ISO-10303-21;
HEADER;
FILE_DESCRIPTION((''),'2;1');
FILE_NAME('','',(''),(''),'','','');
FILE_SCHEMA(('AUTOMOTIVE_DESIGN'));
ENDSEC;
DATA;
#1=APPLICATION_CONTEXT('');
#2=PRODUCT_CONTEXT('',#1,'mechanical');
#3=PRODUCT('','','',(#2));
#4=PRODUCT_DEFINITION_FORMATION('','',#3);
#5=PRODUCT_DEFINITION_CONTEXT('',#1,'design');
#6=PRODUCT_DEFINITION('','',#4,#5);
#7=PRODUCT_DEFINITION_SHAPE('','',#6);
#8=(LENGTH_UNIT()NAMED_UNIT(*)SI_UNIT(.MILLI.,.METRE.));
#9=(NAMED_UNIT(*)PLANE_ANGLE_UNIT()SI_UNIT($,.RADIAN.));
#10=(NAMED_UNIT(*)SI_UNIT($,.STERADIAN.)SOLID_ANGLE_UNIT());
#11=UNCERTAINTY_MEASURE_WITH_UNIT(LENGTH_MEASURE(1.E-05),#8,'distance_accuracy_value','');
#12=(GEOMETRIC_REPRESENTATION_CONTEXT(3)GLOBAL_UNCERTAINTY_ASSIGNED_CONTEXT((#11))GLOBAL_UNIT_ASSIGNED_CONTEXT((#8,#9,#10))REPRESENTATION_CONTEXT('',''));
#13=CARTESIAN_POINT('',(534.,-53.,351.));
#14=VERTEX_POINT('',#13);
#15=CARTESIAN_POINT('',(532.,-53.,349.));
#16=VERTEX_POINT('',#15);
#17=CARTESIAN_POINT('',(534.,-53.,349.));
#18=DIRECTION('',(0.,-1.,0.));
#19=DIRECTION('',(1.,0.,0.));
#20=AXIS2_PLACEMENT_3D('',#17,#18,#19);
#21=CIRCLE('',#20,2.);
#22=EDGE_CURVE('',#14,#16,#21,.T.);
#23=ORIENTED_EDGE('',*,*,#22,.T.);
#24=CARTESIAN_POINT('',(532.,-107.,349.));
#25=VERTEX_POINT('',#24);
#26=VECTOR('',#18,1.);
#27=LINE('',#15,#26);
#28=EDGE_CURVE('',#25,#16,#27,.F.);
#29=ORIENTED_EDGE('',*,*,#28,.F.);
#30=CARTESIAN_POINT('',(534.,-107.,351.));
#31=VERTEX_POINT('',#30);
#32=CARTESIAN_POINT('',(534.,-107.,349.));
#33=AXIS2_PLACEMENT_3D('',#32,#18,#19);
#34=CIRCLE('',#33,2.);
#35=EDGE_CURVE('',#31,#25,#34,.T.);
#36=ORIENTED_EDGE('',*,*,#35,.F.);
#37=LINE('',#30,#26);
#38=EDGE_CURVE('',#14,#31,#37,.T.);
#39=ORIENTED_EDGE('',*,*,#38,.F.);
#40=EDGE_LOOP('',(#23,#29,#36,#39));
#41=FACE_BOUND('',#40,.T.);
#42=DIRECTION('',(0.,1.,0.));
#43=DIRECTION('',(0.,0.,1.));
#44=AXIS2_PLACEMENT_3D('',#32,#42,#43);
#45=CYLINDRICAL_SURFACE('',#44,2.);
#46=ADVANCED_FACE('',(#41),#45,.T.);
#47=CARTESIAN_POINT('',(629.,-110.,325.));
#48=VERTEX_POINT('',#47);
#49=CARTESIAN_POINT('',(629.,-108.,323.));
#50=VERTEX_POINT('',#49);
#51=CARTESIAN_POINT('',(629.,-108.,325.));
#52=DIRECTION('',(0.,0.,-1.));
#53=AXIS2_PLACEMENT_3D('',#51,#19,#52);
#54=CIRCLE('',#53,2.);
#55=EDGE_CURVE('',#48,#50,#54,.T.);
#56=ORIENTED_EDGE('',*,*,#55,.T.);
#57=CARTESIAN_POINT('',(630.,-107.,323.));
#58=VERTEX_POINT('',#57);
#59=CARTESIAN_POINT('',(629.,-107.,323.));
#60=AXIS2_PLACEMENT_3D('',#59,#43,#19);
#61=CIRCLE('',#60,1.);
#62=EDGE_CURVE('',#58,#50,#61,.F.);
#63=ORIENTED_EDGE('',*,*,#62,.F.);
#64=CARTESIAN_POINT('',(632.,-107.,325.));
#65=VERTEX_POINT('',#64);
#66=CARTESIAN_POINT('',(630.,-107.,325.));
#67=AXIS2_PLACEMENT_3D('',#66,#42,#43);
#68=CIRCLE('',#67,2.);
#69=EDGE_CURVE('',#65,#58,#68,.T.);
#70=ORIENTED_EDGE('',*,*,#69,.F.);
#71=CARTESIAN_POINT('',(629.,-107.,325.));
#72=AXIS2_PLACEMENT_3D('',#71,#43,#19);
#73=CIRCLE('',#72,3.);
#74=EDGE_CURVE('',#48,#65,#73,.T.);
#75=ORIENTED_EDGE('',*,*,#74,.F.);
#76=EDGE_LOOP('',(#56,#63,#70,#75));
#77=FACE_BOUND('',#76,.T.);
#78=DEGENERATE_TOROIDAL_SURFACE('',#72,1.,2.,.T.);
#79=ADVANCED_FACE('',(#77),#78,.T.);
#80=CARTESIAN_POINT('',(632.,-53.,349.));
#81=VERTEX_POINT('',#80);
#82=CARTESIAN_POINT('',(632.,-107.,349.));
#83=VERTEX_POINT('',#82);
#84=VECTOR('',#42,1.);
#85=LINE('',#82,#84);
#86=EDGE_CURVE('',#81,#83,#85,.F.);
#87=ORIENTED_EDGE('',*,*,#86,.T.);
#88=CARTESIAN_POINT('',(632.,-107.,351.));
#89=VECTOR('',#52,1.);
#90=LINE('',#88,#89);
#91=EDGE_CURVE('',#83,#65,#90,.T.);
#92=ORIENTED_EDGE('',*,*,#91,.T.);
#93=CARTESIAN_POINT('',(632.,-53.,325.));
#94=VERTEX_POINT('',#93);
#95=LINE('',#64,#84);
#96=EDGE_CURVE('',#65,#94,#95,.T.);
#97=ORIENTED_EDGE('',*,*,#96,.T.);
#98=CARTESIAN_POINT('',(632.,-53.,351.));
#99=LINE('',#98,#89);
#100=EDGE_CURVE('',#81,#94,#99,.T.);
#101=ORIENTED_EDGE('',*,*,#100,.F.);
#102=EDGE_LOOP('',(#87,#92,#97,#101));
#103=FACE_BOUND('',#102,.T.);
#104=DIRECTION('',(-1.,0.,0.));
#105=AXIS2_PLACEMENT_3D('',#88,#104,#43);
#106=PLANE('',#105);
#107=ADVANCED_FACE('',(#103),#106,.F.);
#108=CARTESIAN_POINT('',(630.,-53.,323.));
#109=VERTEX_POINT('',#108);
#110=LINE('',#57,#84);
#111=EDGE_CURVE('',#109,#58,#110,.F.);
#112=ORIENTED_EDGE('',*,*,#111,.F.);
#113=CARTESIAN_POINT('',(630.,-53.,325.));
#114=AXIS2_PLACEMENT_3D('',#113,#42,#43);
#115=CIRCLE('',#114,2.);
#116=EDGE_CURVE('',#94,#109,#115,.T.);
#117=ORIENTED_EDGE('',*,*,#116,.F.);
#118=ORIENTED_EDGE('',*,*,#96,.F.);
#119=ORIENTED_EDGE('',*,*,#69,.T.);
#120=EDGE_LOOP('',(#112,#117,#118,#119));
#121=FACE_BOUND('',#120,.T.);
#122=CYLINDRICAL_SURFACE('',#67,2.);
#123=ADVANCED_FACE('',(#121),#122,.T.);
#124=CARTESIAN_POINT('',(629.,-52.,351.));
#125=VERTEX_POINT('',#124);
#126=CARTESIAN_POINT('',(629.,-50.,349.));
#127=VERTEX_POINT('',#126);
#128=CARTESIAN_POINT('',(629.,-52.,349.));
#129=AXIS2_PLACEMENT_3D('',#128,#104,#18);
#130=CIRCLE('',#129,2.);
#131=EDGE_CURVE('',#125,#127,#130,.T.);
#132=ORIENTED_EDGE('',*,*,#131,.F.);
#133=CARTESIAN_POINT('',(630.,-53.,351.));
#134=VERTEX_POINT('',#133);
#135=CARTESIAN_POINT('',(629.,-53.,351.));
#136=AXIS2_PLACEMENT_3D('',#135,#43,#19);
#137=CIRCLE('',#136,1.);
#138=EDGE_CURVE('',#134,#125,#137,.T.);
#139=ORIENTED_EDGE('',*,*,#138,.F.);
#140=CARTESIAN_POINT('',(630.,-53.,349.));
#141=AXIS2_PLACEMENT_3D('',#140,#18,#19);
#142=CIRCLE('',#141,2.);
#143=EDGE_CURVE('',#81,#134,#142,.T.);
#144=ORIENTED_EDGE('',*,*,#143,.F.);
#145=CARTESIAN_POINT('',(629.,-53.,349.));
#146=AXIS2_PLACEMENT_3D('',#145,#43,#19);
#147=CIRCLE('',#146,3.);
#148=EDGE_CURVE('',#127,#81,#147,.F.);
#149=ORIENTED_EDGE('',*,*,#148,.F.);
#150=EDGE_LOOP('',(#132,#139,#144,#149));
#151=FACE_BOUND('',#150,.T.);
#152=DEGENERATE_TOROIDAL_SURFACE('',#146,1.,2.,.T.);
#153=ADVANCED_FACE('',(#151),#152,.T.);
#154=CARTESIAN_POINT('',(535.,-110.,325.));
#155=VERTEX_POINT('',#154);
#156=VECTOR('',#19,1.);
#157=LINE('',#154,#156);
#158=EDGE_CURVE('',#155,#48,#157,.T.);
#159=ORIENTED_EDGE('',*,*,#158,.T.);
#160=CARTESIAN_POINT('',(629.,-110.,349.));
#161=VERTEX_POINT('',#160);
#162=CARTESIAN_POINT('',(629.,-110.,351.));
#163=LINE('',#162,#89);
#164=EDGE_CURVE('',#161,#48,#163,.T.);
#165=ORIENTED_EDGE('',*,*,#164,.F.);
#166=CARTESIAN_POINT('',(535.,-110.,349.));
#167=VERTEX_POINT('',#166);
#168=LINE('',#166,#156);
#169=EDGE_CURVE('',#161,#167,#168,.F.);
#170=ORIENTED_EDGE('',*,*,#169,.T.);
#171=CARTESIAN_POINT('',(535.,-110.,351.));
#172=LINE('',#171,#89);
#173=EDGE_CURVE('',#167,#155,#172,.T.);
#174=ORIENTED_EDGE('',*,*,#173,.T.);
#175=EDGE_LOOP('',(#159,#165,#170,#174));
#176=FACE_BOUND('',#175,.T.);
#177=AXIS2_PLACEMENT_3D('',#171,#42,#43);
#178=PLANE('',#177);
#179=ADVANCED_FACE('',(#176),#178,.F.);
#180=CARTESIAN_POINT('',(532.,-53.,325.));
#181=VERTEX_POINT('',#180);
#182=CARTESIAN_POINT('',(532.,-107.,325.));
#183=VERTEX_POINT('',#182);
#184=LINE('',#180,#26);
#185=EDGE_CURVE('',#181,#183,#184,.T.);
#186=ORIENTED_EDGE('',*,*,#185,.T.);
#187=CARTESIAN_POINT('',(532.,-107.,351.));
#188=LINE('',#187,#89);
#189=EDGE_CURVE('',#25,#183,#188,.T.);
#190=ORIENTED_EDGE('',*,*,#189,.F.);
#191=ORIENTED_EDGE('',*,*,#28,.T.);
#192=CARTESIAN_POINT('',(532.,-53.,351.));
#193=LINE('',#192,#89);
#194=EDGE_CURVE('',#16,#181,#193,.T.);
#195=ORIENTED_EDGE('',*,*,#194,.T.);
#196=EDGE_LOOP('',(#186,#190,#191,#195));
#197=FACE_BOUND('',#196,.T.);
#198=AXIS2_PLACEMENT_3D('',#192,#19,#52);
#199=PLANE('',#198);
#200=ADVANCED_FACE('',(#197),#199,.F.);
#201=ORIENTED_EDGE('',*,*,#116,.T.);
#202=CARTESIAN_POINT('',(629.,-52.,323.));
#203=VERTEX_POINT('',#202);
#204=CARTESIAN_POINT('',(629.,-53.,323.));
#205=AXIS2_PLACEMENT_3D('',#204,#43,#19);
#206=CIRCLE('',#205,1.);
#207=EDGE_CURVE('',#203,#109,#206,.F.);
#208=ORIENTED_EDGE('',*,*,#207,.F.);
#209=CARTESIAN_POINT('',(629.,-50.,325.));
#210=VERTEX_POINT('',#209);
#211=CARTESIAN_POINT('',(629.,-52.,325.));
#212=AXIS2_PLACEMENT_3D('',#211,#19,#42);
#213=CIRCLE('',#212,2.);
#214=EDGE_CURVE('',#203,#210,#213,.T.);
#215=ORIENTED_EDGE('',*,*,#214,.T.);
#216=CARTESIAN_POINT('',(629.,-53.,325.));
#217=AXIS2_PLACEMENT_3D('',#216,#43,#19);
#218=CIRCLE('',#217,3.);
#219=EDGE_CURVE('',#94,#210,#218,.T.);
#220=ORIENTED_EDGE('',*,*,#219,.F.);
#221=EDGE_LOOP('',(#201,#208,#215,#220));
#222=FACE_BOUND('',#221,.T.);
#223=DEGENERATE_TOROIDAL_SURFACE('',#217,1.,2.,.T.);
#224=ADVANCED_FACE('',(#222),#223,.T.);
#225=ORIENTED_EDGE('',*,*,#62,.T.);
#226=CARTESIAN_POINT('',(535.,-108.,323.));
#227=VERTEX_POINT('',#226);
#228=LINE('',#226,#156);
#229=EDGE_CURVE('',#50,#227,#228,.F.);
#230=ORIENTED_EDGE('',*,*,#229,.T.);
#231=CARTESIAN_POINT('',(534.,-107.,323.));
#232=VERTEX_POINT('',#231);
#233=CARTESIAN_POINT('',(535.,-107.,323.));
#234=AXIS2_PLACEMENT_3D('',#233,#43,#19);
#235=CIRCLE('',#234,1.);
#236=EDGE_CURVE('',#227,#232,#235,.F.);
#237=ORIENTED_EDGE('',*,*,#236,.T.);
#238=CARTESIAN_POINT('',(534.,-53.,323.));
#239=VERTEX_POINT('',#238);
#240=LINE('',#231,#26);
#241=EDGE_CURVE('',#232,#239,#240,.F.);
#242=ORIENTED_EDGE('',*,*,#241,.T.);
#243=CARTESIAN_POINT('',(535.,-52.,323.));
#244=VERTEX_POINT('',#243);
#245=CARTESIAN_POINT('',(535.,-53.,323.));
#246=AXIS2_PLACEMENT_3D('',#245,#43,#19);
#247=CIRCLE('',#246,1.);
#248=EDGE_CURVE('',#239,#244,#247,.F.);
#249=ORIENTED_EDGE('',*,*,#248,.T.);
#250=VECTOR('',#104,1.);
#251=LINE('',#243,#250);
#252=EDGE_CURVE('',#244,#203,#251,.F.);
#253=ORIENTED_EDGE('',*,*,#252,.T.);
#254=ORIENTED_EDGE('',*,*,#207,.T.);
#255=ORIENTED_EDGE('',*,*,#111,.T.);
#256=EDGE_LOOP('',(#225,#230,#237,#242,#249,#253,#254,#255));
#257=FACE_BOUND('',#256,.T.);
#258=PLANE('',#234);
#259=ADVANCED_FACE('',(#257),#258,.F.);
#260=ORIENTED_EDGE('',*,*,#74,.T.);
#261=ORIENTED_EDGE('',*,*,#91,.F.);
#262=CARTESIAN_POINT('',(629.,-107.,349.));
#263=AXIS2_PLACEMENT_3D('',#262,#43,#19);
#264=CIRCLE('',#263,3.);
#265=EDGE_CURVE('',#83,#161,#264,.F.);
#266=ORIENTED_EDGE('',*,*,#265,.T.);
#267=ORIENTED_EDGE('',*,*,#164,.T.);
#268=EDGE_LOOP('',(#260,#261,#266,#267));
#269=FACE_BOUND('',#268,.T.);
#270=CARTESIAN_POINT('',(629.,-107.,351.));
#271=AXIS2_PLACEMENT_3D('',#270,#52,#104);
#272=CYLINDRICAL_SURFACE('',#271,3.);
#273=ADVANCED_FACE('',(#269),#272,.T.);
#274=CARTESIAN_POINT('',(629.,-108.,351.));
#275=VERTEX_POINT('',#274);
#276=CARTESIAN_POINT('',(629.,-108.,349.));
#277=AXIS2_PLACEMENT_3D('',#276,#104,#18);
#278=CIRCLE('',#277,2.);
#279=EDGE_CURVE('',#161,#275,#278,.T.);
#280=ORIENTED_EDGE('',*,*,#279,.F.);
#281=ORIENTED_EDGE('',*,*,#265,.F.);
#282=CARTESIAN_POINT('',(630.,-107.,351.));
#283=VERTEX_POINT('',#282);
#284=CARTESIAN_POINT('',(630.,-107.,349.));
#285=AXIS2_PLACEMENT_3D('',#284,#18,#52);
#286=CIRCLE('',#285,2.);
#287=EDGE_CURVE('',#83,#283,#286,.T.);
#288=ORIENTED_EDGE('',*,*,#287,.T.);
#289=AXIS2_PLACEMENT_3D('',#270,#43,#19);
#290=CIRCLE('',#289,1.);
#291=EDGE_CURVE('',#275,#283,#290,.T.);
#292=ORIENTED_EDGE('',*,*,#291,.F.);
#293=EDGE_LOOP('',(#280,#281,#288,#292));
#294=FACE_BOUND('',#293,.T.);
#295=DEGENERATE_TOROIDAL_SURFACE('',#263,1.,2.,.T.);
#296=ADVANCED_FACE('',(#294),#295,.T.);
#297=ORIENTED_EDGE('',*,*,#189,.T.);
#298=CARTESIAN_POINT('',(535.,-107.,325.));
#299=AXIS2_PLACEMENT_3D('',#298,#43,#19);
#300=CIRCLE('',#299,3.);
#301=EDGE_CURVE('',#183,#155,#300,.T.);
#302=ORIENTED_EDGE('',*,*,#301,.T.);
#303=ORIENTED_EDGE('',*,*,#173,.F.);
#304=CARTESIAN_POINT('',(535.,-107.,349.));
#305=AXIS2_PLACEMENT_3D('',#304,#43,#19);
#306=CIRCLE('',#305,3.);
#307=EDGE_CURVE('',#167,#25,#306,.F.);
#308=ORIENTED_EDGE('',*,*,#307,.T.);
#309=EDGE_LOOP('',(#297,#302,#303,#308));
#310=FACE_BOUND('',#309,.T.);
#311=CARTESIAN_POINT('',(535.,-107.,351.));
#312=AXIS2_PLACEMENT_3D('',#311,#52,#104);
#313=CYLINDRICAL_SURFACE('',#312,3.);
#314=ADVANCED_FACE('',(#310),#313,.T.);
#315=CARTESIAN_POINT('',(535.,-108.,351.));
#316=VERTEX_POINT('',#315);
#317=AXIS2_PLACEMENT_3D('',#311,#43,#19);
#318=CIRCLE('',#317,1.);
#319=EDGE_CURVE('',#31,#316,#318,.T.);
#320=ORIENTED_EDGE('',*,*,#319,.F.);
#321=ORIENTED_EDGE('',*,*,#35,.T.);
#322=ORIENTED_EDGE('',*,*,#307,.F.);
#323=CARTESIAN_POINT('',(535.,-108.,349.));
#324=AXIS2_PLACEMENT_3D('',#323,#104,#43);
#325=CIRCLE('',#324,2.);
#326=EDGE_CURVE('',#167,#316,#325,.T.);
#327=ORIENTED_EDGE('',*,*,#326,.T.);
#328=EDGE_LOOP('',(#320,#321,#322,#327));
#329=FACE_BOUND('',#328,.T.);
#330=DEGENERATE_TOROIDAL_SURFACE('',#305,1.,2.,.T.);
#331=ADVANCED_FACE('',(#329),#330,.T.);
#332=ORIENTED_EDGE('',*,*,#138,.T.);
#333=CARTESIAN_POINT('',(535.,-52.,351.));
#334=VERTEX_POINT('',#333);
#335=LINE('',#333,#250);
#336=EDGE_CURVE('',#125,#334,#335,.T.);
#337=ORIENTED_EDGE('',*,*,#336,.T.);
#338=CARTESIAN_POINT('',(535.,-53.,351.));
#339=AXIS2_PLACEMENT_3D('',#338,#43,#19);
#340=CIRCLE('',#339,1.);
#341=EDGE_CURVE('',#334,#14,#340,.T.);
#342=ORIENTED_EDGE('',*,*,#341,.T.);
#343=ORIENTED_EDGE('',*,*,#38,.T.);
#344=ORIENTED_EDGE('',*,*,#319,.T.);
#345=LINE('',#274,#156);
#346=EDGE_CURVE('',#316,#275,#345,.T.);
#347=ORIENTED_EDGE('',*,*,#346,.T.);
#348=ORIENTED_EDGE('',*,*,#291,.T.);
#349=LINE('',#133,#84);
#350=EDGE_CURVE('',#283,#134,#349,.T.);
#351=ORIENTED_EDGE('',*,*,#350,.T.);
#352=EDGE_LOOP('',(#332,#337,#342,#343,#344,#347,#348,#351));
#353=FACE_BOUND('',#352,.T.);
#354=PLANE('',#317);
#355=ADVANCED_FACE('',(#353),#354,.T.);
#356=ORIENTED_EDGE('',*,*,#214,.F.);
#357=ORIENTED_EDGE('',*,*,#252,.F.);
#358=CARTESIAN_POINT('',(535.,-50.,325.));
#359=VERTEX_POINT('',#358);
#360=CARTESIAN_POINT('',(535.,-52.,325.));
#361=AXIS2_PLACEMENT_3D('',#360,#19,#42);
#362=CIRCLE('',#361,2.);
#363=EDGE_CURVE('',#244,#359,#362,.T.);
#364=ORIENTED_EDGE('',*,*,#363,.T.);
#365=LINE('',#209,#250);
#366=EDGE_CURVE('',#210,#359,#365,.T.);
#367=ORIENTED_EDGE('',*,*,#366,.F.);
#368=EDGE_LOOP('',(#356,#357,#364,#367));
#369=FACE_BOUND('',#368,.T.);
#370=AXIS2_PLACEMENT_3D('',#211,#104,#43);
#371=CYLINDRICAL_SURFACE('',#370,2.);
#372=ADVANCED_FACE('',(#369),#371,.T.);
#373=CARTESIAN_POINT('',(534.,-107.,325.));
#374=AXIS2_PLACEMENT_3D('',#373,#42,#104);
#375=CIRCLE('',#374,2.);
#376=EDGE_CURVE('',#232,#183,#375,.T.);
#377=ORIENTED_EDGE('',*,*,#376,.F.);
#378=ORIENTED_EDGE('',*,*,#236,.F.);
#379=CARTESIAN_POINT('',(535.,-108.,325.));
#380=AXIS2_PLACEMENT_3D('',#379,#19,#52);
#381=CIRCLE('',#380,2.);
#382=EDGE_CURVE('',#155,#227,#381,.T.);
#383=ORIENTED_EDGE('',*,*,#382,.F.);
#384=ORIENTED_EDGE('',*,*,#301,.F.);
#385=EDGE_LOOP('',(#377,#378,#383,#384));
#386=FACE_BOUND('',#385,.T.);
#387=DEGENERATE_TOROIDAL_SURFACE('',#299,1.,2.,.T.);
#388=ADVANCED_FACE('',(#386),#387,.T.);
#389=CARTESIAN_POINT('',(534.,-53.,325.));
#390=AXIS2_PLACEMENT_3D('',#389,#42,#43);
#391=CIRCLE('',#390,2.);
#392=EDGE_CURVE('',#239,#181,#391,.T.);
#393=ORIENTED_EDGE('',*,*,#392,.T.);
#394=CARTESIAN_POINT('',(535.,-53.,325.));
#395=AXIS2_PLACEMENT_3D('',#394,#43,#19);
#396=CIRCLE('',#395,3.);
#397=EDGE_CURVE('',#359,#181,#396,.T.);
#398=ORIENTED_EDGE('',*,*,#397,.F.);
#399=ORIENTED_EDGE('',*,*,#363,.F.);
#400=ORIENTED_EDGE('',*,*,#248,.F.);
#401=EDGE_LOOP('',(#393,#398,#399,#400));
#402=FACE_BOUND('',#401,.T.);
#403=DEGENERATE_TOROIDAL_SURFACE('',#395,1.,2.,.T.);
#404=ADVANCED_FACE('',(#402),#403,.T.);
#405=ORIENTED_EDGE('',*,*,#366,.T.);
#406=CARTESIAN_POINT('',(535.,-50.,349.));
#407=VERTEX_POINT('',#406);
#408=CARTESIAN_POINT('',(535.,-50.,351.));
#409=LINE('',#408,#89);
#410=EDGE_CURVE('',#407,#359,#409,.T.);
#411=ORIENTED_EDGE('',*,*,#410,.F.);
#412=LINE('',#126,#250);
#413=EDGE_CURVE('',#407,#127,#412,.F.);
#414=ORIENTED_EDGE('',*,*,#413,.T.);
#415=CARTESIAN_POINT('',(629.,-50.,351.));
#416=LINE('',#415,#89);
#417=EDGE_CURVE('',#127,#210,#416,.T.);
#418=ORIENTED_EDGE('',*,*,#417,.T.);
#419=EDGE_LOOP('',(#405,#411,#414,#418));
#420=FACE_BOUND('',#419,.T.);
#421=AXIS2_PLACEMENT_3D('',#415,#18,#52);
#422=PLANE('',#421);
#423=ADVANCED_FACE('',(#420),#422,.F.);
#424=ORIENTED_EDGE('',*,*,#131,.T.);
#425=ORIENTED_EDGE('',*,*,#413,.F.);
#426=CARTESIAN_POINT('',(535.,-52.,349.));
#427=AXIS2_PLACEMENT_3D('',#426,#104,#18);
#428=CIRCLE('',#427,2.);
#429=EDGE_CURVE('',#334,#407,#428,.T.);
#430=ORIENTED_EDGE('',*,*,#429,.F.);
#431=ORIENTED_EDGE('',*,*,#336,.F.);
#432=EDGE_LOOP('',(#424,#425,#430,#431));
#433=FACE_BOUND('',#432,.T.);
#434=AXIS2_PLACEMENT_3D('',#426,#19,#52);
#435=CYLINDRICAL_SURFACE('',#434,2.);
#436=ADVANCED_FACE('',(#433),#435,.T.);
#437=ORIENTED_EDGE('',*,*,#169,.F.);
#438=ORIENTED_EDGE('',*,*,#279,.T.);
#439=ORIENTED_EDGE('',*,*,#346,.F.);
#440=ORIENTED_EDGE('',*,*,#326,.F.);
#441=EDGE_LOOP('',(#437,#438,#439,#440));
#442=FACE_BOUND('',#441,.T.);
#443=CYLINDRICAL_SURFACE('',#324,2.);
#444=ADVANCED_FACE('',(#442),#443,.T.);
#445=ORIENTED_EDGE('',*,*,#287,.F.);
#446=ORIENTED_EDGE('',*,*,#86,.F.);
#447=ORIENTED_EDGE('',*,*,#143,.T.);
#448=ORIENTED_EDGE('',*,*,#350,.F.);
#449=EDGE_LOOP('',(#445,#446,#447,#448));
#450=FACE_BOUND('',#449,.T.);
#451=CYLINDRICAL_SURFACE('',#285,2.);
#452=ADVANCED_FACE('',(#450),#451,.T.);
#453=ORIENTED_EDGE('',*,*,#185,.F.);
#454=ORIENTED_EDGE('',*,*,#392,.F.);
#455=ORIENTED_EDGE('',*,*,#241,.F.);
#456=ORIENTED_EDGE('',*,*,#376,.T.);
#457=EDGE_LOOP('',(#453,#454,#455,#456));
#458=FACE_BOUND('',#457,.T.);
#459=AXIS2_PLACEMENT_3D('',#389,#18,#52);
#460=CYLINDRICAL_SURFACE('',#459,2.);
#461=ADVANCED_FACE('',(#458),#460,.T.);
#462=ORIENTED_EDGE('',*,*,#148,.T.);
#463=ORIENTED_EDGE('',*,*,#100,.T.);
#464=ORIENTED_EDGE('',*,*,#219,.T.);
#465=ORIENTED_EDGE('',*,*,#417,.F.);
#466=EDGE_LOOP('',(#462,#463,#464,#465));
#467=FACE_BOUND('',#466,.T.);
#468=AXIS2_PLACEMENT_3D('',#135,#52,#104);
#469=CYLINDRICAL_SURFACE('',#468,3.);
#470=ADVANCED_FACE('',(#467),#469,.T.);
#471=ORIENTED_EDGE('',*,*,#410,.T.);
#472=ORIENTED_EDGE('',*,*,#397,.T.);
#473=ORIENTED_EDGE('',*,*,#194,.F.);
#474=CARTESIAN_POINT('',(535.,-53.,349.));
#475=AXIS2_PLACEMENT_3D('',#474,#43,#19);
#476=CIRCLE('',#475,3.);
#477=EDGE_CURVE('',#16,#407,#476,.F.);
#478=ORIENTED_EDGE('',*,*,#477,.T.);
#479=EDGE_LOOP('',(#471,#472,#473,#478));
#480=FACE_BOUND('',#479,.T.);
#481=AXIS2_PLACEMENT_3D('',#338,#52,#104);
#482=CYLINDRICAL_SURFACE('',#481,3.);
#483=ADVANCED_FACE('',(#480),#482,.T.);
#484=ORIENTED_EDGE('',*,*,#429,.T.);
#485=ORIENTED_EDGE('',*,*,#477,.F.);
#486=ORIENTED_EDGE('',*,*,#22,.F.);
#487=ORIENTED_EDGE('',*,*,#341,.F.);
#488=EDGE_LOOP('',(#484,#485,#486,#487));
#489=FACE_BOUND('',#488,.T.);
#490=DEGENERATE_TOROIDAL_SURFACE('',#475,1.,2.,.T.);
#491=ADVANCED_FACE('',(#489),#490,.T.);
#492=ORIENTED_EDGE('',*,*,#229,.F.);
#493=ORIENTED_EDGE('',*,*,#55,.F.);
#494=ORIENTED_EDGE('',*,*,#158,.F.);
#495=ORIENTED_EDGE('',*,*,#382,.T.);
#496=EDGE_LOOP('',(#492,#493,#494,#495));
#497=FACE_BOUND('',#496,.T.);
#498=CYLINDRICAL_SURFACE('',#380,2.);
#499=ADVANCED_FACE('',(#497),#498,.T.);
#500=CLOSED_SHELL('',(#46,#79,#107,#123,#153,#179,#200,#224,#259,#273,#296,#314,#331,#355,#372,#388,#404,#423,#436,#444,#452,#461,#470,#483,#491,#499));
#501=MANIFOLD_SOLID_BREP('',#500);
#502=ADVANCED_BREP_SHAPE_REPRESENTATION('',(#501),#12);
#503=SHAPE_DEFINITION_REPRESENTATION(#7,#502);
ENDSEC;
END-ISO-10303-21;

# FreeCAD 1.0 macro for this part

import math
import FreeCAD as App
import Part
import Sketcher


def edges_at(feature, points):
    """Names of the edges that pass closest to the given points."""
    edges = feature.Shape.Edges
    near = lambda p: min(range(len(edges)), key=lambda i: edges[i].distToShape(Part.Vertex(*p))[0])
    return sorted({f"Edge{near(p) + 1}" for p in points})

doc = App.newDocument("Part")
body = doc.addObject("PartDesign::Body", "Body")

sketch1 = body.newObject("Sketcher::SketchObject", "Sketch")
sketch1.AttachmentSupport = (doc.getObject("XY_Plane"), [""])
sketch1.MapMode = "FlatFace"
sketch1.AttachmentOffset = App.Placement(App.Vector(0, 0, 323), App.Rotation())
sketch1.addGeometry([
    Part.LineSegment(App.Vector(535, -110, 0), App.Vector(629, -110, 0)),
    Part.ArcOfCircle(Part.Circle(App.Vector(629, -107, 0), App.Vector(0, 0, 1), 3), math.radians(-90), math.radians(0)),
    Part.LineSegment(App.Vector(632, -107, 0), App.Vector(632, -53, 0)),
    Part.ArcOfCircle(Part.Circle(App.Vector(629, -53, 0), App.Vector(0, 0, 1), 3), math.radians(0), math.radians(90)),
    Part.LineSegment(App.Vector(629, -50, 0), App.Vector(535, -50, 0)),
    Part.ArcOfCircle(Part.Circle(App.Vector(535, -53, 0), App.Vector(0, 0, 1), 3), math.radians(90), math.radians(180)),
    Part.LineSegment(App.Vector(532, -53, 0), App.Vector(532, -107, 0)),
    Part.ArcOfCircle(Part.Circle(App.Vector(535, -107, 0), App.Vector(0, 0, 1), 3), math.radians(180), math.radians(270)),
], False)
sketch1.addConstraint([
    Sketcher.Constraint("Tangent", 0, 2, 1, 1),
    Sketcher.Constraint("Tangent", 1, 2, 2, 1),
    Sketcher.Constraint("Tangent", 2, 2, 3, 1),
    Sketcher.Constraint("Tangent", 3, 2, 4, 1),
    Sketcher.Constraint("Tangent", 4, 2, 5, 1),
    Sketcher.Constraint("Tangent", 5, 2, 6, 1),
    Sketcher.Constraint("Tangent", 6, 2, 7, 1),
    Sketcher.Constraint("Tangent", 7, 2, 0, 1),
    Sketcher.Constraint("Horizontal", 0),
    Sketcher.Constraint("Vertical", 2),
    Sketcher.Constraint("Horizontal", 4),
    Sketcher.Constraint("Vertical", 6),
    Sketcher.Constraint("Equal", 1, 3),
    Sketcher.Constraint("Equal", 3, 5),
    Sketcher.Constraint("Equal", 5, 7),
    Sketcher.Constraint("Radius", 1, 3.0),
    Sketcher.Constraint("DistanceX", 0, 1, 0, 2, 94.0),
    Sketcher.Constraint("DistanceY", 2, 1, 2, 2, 54.0),
    Sketcher.Constraint("DistanceX", -1, 1, 1, 3, 629.0),
    Sketcher.Constraint("DistanceY", 1, 3, -1, 1, 107.0),
])
pad1 = body.newObject("PartDesign::Pad", "Pad")
pad1.Profile = sketch1
pad1.Length = 28
doc.recompute()

fillet = body.newObject("PartDesign::Fillet", "Fillet")
fillet.Base = (pad1, edges_at(pad1, [
    (632, -80, 323),
    (631.121, -109.121, 323),
    (582, -110, 323),
    (532.879, -109.121, 323),
    (631.121, -109.121, 351),
    (632, -80, 351),
    (631.121, -50.879, 351),
    (582, -50, 351),
    (532.879, -50.879, 351),
    (532, -80, 351),
    (532.879, -109.121, 351),
    (532, -80, 323),
    (582, -110, 351),
    (532.879, -50.879, 323),
    (582, -50, 323),
    (631.121, -50.879, 323),
]))
fillet.Radius = 2

doc.recompute()
